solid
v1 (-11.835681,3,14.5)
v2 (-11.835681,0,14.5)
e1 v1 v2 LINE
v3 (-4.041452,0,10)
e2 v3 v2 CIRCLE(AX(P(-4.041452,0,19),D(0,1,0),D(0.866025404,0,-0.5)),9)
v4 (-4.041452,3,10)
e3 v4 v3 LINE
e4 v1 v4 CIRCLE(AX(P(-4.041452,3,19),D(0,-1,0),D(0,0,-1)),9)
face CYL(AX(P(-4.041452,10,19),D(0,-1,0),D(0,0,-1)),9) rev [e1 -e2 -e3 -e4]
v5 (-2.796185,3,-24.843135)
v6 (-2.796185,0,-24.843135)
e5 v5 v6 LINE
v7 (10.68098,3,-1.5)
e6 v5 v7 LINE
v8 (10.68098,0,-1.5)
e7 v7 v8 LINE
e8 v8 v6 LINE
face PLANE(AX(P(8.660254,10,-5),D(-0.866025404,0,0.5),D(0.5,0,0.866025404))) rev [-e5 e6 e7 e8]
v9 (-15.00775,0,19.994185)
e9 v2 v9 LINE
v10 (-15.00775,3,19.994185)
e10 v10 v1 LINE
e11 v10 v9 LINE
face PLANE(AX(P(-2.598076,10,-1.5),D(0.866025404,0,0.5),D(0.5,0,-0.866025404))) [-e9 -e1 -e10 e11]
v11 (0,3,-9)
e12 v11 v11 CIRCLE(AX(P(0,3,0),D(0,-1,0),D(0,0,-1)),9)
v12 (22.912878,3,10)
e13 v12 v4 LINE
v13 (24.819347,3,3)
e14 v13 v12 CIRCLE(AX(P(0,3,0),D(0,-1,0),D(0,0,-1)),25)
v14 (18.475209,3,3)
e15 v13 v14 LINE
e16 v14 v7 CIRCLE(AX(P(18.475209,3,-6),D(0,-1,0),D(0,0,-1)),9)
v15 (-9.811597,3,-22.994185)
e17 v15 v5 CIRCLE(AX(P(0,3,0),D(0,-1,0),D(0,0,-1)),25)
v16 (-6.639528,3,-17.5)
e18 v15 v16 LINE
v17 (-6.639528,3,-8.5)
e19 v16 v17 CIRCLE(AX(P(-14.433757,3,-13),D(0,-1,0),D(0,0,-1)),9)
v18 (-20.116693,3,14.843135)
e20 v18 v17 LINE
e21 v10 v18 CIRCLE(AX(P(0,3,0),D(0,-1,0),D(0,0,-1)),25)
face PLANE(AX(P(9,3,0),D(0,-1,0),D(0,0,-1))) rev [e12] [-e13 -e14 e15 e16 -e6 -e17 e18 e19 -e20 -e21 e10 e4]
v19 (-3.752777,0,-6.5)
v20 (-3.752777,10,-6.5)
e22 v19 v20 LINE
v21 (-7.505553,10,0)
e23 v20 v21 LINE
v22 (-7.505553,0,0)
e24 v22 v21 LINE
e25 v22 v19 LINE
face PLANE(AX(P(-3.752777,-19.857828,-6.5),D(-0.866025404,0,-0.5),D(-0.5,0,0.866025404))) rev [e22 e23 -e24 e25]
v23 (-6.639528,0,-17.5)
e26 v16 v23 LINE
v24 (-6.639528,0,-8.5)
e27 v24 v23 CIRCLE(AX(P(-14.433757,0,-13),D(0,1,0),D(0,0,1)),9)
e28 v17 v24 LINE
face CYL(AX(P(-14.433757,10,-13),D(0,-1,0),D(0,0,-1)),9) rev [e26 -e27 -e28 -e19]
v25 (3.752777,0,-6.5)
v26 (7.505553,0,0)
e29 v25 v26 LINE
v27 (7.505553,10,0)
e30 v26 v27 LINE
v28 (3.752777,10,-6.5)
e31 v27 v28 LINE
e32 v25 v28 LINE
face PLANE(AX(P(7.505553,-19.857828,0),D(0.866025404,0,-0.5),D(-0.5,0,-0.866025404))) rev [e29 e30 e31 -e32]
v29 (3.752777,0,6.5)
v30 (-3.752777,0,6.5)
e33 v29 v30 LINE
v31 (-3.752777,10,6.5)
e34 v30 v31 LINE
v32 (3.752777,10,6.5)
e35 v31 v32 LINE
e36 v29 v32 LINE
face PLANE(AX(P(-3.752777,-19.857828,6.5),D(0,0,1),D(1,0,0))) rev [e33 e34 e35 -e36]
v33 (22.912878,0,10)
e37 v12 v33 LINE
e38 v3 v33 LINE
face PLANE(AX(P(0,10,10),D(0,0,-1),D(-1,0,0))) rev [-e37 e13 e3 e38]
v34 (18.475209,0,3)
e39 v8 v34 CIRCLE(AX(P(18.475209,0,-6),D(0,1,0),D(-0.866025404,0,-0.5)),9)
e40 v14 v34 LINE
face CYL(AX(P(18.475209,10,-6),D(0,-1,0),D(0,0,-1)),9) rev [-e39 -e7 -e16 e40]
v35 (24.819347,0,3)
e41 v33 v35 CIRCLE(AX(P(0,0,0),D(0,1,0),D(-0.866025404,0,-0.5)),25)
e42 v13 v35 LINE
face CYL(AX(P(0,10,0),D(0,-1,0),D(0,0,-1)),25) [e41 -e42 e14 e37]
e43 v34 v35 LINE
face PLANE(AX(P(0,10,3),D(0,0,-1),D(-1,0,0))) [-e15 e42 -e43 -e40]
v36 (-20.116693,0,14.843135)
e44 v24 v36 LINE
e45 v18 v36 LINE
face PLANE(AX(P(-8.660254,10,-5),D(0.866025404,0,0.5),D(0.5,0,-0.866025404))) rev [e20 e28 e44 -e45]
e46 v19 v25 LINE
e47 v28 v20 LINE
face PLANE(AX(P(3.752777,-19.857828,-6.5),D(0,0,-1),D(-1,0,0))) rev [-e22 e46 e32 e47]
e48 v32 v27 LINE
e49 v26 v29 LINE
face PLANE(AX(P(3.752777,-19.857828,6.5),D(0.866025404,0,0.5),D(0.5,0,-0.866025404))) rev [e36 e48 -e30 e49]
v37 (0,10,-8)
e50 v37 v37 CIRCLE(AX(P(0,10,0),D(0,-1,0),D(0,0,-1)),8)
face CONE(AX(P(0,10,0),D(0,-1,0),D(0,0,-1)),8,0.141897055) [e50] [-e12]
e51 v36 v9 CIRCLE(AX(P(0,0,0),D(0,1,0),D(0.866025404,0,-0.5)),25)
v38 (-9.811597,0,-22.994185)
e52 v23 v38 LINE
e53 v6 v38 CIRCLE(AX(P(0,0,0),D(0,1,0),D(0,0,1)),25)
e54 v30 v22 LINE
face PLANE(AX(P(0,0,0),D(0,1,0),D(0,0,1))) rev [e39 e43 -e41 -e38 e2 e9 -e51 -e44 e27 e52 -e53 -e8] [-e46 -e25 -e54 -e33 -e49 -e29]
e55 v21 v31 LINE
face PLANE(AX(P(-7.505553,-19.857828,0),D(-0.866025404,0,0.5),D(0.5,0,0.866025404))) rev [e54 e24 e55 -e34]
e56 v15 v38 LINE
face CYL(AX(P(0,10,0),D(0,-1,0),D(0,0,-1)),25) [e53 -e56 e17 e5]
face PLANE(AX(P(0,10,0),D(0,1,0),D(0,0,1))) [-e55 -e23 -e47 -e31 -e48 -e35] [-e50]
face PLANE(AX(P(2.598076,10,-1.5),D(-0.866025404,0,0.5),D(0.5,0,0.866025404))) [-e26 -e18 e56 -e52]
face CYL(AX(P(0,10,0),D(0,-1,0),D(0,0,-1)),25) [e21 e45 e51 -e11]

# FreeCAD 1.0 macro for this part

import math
import FreeCAD as App
import Part
import Sketcher
Q = App.Units.Quantity


def add_polygon(sketch, points):
    """Adds a closed chain of lines whose ends are joined by coincident constraints."""
    first, n = sketch.GeometryCount, len(points)
    for a, b in zip(points, points[1:] + points[:1]):
        sketch.addGeometry(Part.LineSegment(App.Vector(*a, 0), App.Vector(*b, 0)), False)
    for i in range(n):
        sketch.addConstraint(Sketcher.Constraint("Coincident", first + i, 2, first + (i + 1) % n, 1))

doc = App.newDocument("Part")
body = doc.addObject("PartDesign::Body", "Body")

sketch1 = doc.addObject("Sketcher::SketchObject", "Sketch")
body.addObject(sketch1)
sketch1.AttachmentSupport = (doc.XZ_Plane, [""])
sketch1.MapMode = "FlatFace"
sketch1.addGeometry([
    Part.ArcOfCircle(Part.Circle(App.Vector(0, 0, 0), App.Vector(0, 0, 1), 25), math.radians(-113.107897), math.radians(-96.421822)),
    Part.LineSegment(App.Vector(-9.811597, -22.994185, 0), App.Vector(-6.639528, -17.5, 0)),
    Part.ArcOfCircle(Part.Circle(App.Vector(-14.433757, -13, 0), App.Vector(0, 0, 1), 9), math.radians(-30), math.radians(30)),
    Part.LineSegment(App.Vector(-6.639528, -8.5, 0), App.Vector(-17.320508, 10, 0)),
    Part.LineSegment(App.Vector(-17.320508, 10, 0), App.Vector(17.320508, 10, 0)),
    Part.LineSegment(App.Vector(17.320508, 10, 0), App.Vector(-2.796185, -24.843135, 0)),
    Part.Circle(App.Vector(0, 0, 0), App.Vector(0, 0, 1), 1.9),
], False)
sketch1.addConstraint([
    Sketcher.Constraint("Coincident", 0, 1, 1, 1),
    Sketcher.Constraint("Tangent", 1, 2, 2, 1),
    Sketcher.Constraint("Tangent", 2, 2, 3, 1),
    Sketcher.Constraint("Coincident", 3, 2, 4, 1),
    Sketcher.Constraint("Coincident", 4, 2, 5, 1),
    Sketcher.Constraint("Coincident", 5, 2, 0, 2),
    Sketcher.Constraint("Horizontal", 4),
    Sketcher.Constraint("Coincident", 0, 3, -1, 1),
    Sketcher.Constraint("Coincident", 6, 3, -1, 1),
    Sketcher.Constraint("Parallel", 1, 5),
    Sketcher.Constraint("Vertical", 1, 2, 2, 2),
    Sketcher.Constraint("Radius", 0, 25.0),
    Sketcher.Constraint("Radius", 2, 9.0),
    Sketcher.Constraint("Diameter", 6, 3.8),
    Sketcher.Constraint("Angle", 1, Q("60 deg")),
    Sketcher.Constraint("DistanceY", 2, 3, -1, 1, 13.0),
    Sketcher.Constraint("DistanceY", -1, 1, 3, 2, 10.0),
    Sketcher.Constraint("Distance", 1, 6.344139),
    Sketcher.Constraint("DistanceX", 4, 1, 4, 2, 34.641016),
])
pad1 = doc.addObject("PartDesign::Pad", "Pad")
body.addObject(pad1)
pad1.Profile = sketch1
pad1.Length = 10
pad1.Reversed = True
doc.recompute()

polarpattern = doc.addObject("PartDesign::PolarPattern", "PolarPattern")
body.addObject(polarpattern)
polarpattern.Originals = [pad1]
polarpattern.Axis = (doc.Y_Axis, [""])
polarpattern.Angle = 360
polarpattern.Occurrences = 3
body.Tip = polarpattern

sketch2 = doc.addObject("Sketcher::SketchObject", "Sketch001")
body.addObject(sketch2)
sketch2.AttachmentSupport = (doc.XZ_Plane, [""])
sketch2.MapMode = "FlatFace"
sketch2.AttachmentOffset = App.Placement(App.Vector(0, 0, -10), App.Rotation())
add_polygon(sketch2, [(3.752777, -6.5), (-3.752777, -6.5), (-7.505553, 0), (-3.752777, 6.5), (3.752777, 6.5), (7.505553, 0)])
sketch2.addConstraint([
    Sketcher.Constraint("Horizontal", 0),
    Sketcher.Constraint("Horizontal", 3),
    Sketcher.Constraint("Symmetric", 0, 2, 3, 2, -1, 1),
    Sketcher.Constraint("Symmetric", 1, 2, 4, 2, -1, 1),
    Sketcher.Constraint("PointOnObject", 1, 2, -1),
    Sketcher.Constraint("Parallel", 2, 5),
    Sketcher.Constraint("Vertical", 0, 2, 2, 2),
    Sketcher.Constraint("Angle", 1, Q("120 deg")),
    Sketcher.Constraint("DistanceY", 0, 2, 2, 2, 13.0),
    Sketcher.Constraint("DistanceX", 0, 2, 0, 1, 7.505554),
])
pocket1 = doc.addObject("PartDesign::Pocket", "Pocket")
body.addObject(pocket1)
pocket1.Profile = sketch2
pocket1.Length = 10
pocket1.Reversed = True

sketch3 = doc.addObject("Sketcher::SketchObject", "Sketch002")
body.addObject(sketch3)
sketch3.AttachmentSupport = (doc.XY_Plane, [""])
sketch3.MapMode = "FlatFace"
add_polygon(sketch3, [(29.759606, 10), (8, 10), (9, 3), (29.759606, 3)])
sketch3.addConstraint([
    Sketcher.Constraint("Horizontal", 0),
    Sketcher.Constraint("Horizontal", 2),
    Sketcher.Constraint("Vertical", 3),
    Sketcher.Constraint("DistanceY", 3, 1, 3, 2, 7.0),
    Sketcher.Constraint("DistanceX", -1, 1, 0, 2, 8.0),
    Sketcher.Constraint("DistanceY", -1, 1, 0, 2, 10.0),
    Sketcher.Constraint("DistanceX", -1, 1, 1, 2, 9.0),
    Sketcher.Constraint("DistanceX", 0, 2, 0, 1, 21.759606),
])
groove = doc.addObject("PartDesign::Groove", "Groove")
body.addObject(groove)
groove.Profile = sketch3
groove.ReferenceAxis = (sketch3, ["V_Axis"])
groove.Angle = 360

doc.recompute()
